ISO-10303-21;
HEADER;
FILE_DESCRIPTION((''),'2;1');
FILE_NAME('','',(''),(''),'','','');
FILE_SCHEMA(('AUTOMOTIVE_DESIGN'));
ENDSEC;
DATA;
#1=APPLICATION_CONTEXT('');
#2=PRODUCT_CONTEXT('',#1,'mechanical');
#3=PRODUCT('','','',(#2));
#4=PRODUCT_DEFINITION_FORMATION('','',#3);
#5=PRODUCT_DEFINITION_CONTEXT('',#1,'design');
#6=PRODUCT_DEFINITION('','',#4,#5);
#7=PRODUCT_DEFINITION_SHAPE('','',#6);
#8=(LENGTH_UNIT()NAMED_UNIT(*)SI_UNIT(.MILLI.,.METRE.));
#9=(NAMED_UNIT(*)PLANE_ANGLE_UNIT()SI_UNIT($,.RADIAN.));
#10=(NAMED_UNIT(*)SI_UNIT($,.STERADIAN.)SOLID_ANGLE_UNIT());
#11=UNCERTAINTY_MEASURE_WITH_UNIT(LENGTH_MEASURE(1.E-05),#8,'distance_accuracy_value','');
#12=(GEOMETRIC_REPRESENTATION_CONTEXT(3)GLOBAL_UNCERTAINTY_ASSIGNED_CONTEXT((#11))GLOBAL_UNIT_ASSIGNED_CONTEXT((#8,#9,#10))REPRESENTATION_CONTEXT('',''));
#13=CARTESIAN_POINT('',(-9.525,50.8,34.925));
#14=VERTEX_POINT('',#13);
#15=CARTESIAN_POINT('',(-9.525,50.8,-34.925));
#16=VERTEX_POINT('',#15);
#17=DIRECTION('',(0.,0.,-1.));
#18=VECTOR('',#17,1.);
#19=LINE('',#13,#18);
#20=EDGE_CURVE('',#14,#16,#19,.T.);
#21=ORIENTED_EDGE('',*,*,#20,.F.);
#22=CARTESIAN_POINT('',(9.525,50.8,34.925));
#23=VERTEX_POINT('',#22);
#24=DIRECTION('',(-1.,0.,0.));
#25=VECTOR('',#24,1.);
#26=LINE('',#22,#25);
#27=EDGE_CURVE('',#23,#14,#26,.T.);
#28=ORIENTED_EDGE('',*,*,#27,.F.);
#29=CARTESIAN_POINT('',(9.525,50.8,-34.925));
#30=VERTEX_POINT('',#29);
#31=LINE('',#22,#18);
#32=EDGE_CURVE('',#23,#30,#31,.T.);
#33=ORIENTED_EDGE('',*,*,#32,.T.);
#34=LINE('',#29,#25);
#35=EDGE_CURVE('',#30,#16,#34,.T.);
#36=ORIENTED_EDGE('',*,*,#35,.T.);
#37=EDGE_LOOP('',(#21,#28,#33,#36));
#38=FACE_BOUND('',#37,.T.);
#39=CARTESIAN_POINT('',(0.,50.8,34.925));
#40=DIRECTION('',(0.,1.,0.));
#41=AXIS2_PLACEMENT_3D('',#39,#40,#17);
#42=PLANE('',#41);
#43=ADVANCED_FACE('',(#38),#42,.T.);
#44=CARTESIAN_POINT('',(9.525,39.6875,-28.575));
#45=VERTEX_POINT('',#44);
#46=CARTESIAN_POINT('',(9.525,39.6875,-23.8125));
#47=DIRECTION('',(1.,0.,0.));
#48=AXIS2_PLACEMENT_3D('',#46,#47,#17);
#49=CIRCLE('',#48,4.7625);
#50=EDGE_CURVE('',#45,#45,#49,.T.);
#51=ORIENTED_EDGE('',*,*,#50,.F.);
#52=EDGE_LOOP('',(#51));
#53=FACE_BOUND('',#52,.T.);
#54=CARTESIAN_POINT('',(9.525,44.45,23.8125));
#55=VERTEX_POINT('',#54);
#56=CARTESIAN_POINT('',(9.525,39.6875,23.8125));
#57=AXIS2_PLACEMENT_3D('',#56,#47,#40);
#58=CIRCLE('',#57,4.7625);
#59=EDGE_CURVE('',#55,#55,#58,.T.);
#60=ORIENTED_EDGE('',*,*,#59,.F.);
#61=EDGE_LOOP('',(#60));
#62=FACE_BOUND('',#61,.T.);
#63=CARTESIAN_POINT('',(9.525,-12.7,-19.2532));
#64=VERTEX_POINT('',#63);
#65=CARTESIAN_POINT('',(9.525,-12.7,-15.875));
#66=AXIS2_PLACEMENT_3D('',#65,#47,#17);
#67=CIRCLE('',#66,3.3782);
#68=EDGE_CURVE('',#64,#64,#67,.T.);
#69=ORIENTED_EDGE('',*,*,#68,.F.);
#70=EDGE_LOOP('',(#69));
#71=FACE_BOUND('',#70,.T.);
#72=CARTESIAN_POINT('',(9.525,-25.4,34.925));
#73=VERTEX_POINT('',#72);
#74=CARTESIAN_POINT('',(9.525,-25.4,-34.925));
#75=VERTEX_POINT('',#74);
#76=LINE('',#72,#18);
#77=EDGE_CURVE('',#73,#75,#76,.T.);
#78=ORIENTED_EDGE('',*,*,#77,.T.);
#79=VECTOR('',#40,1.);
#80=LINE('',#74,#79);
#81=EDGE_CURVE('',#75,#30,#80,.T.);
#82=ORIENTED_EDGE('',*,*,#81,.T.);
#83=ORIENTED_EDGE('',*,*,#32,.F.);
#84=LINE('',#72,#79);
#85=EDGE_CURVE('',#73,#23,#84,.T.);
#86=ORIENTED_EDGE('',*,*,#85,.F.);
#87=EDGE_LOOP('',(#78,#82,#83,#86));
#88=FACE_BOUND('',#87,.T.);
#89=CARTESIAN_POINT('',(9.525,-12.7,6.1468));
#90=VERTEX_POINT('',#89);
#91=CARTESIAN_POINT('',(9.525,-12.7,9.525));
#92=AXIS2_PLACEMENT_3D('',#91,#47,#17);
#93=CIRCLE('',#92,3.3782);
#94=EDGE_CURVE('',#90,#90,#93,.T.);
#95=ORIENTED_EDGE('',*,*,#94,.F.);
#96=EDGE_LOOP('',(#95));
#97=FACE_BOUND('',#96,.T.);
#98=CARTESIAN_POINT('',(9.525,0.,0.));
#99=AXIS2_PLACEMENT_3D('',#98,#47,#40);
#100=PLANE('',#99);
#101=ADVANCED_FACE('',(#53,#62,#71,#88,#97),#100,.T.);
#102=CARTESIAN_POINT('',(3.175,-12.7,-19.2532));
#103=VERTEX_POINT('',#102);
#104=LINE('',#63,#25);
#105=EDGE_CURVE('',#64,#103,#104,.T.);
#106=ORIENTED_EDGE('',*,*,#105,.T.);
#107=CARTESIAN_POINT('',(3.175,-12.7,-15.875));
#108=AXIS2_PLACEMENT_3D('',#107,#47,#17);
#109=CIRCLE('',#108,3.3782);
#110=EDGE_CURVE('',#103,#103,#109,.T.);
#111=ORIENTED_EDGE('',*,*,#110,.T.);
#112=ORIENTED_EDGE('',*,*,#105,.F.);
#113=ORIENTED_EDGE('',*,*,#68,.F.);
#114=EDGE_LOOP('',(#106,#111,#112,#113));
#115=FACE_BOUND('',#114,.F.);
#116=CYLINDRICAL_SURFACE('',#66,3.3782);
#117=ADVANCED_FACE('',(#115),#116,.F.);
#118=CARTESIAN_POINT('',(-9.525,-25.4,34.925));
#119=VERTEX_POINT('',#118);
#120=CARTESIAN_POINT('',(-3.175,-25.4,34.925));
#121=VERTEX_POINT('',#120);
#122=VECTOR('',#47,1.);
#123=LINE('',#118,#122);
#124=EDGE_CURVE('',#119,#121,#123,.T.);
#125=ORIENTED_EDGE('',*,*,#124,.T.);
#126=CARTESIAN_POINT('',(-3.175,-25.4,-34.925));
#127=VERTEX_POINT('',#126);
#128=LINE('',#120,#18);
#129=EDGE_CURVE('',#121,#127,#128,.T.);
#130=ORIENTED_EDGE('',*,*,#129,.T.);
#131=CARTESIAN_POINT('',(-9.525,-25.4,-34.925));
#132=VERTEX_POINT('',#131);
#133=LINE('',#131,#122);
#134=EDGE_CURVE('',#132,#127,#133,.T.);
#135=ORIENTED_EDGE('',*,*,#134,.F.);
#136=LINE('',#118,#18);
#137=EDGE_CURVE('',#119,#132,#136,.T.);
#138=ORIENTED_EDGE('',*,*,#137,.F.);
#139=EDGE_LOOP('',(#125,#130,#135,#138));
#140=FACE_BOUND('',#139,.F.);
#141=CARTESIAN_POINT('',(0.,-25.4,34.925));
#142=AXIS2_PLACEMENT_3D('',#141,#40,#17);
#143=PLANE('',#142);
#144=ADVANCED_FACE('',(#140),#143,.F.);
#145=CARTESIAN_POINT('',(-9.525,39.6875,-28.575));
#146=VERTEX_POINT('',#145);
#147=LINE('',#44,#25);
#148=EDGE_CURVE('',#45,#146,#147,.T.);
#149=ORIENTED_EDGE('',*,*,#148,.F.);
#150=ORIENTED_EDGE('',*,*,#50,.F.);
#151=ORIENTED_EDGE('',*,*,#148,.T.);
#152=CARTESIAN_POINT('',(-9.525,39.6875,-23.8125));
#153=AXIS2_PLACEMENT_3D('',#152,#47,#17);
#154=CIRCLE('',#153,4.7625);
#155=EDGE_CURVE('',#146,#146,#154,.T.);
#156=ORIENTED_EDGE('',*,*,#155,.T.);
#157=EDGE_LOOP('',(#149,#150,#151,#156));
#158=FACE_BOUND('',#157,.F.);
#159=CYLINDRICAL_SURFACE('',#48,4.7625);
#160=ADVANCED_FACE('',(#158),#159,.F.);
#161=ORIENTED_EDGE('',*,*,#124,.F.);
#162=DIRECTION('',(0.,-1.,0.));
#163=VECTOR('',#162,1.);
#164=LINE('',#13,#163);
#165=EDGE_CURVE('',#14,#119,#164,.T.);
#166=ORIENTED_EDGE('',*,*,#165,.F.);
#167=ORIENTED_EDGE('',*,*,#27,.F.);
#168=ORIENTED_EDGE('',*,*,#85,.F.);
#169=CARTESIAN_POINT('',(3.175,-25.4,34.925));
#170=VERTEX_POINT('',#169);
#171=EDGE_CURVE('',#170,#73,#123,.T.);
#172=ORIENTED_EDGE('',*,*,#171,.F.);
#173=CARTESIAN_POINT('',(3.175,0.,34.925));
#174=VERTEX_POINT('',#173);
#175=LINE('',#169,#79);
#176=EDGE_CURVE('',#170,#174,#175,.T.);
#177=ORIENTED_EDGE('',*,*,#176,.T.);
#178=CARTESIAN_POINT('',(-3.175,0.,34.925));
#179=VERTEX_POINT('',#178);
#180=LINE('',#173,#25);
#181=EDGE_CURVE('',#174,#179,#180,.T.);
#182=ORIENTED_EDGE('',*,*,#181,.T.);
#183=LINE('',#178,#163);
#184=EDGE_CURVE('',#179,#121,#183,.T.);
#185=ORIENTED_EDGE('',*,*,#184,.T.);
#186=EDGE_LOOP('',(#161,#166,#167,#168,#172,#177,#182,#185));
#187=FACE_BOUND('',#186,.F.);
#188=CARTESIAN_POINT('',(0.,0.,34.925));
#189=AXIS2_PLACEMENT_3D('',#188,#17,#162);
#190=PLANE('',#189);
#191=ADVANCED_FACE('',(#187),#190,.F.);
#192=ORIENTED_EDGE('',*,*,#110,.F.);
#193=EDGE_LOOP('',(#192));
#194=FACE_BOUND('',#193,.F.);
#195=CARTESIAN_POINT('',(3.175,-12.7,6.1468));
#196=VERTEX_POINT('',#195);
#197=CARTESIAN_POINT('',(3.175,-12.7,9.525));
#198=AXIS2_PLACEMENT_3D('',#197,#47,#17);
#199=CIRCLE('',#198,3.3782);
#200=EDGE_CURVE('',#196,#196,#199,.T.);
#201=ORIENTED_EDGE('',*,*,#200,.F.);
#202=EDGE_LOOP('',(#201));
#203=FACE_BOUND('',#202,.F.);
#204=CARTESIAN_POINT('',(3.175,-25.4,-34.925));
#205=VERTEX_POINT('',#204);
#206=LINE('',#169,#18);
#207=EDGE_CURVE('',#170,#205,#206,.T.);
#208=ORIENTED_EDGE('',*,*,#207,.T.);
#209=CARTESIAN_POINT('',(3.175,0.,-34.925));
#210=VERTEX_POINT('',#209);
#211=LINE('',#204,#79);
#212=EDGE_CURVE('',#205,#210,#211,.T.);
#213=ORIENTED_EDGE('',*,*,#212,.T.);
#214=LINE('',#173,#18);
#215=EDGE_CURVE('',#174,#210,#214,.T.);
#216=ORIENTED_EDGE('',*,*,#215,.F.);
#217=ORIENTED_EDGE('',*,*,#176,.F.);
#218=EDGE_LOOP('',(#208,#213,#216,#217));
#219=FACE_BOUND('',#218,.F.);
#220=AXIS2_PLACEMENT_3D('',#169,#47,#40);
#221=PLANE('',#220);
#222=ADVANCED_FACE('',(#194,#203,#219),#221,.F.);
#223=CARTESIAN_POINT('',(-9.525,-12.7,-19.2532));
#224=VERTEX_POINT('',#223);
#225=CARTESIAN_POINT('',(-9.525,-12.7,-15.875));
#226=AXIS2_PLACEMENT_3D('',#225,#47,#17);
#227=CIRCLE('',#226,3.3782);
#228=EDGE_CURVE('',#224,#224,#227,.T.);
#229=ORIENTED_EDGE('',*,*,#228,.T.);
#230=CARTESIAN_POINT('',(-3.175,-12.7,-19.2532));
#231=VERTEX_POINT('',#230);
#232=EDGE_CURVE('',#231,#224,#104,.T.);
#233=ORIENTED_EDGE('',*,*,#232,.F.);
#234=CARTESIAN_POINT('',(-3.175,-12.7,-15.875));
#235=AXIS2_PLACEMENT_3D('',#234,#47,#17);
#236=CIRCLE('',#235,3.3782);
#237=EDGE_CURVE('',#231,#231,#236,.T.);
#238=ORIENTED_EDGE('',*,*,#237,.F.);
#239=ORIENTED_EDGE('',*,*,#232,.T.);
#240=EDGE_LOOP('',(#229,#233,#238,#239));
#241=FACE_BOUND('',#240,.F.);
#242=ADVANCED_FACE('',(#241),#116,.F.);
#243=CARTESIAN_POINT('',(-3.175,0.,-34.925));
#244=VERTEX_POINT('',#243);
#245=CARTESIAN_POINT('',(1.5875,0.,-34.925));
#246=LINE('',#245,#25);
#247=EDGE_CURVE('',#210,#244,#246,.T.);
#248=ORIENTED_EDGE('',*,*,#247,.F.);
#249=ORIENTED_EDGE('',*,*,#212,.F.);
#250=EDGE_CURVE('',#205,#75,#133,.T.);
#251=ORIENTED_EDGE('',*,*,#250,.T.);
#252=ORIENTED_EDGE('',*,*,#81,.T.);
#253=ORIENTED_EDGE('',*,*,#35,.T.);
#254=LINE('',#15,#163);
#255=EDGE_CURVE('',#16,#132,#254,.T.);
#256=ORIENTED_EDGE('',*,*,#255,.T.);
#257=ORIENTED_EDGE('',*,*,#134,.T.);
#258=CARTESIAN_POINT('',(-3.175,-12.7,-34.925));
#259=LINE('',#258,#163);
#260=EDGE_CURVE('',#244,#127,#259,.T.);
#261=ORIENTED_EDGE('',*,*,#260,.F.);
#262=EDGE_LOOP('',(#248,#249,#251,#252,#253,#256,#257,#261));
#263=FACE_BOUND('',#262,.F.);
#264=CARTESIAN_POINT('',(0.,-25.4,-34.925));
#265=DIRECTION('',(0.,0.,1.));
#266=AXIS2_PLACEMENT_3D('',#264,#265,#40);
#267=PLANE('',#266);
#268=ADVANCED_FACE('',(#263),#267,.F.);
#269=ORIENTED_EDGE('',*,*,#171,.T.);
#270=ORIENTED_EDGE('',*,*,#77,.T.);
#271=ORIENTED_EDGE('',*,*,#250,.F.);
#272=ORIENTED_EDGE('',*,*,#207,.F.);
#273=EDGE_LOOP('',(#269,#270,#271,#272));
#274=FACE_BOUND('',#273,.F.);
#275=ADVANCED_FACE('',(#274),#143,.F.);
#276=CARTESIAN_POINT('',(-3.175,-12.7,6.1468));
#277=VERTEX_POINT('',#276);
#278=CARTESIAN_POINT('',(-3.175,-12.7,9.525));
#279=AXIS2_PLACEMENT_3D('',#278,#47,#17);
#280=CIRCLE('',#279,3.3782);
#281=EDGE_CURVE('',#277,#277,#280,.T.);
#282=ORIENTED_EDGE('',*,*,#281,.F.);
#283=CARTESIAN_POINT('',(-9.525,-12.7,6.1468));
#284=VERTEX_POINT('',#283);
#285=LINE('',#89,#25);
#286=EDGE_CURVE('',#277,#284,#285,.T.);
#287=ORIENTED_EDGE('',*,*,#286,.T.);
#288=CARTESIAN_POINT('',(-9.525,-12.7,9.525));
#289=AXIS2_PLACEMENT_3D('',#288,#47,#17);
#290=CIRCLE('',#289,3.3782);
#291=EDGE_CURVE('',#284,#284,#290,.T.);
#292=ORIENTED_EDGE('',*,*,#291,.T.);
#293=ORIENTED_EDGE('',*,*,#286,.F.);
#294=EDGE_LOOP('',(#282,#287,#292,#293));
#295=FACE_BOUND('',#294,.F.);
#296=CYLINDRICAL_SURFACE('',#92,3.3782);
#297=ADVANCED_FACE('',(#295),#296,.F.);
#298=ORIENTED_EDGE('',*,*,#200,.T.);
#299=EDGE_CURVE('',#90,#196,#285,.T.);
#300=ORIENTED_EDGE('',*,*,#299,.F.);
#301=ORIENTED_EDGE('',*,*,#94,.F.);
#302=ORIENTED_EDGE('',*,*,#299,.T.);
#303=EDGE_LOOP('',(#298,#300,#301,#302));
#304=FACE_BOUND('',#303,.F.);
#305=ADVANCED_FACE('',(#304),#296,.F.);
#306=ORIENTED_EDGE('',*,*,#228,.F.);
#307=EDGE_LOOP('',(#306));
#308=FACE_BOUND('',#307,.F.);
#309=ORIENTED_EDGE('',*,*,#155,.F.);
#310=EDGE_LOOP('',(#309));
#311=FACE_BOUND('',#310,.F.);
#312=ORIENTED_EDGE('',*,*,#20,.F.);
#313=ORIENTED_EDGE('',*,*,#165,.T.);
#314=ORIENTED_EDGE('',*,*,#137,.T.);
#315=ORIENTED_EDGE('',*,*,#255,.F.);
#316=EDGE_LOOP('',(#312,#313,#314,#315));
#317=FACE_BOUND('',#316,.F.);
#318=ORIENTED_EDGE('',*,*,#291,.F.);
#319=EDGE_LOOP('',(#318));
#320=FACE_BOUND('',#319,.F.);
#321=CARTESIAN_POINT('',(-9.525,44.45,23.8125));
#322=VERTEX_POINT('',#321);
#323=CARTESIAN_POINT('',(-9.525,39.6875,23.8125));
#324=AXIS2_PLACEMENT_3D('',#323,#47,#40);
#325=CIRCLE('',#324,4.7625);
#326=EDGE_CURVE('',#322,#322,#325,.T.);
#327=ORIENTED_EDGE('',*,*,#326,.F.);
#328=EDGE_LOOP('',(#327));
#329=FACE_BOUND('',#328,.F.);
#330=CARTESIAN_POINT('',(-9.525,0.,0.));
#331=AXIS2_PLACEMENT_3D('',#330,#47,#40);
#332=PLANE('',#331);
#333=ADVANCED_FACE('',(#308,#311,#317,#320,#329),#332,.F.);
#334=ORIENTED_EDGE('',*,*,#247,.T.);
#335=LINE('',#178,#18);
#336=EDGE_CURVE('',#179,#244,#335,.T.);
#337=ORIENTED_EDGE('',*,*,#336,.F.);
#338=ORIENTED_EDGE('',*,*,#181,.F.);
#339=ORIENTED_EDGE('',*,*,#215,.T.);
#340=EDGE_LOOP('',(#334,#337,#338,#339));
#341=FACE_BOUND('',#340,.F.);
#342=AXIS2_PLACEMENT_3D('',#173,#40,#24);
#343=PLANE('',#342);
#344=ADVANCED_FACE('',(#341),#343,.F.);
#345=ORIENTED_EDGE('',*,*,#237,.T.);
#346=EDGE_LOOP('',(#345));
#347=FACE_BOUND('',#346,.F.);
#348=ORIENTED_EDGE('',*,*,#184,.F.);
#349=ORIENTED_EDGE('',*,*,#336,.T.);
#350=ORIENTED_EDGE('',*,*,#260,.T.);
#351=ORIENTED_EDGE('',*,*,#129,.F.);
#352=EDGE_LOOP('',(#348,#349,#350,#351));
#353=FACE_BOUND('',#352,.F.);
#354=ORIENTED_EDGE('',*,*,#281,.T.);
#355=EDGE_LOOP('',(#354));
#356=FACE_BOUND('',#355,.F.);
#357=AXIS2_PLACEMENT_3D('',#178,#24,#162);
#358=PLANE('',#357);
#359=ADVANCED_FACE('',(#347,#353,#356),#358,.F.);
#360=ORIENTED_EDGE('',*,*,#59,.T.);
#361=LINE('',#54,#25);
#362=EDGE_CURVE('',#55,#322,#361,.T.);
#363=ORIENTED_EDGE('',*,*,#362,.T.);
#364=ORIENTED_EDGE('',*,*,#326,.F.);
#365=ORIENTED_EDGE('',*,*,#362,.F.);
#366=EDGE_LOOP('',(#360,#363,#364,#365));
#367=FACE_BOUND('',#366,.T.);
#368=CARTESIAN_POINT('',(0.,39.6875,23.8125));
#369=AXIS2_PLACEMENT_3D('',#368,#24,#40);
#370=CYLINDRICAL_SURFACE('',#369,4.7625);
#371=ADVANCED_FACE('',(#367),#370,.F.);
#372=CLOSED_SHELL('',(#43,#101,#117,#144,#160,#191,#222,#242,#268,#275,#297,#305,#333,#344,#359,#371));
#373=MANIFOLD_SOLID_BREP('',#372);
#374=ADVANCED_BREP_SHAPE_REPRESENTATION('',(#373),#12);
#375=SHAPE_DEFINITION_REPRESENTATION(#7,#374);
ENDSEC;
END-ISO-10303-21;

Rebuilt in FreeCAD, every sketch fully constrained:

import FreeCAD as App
import Part
import Sketcher
from FreeCAD import Vector
Q = App.Units.Quantity

doc = App.newDocument("Part")
params = doc.addObject("Spreadsheet::Sheet", "Params")
for row, (alias, value) in enumerate([
    ("sketch1_diameter", "0.375 in"),
    ("sketch1_height", "2.75 in"),
    ("pad1_length", "0.75 in"),
    ("sketch2_width", "0.25 in"),
    ("sketch2_height", "1 in"),
    ("sketch3_diameter", "0.266 in"),
    ("sketch4_diameter", "0.375 in"),
], start=1):
    params.set(f"A{row}", alias)
    params.set(f"B{row}", "=" + value)
    params.setAlias(f"B{row}", alias)

body = doc.addObject("PartDesign::Body", "Body")

sketch1 = doc.addObject("Sketcher::SketchObject", "Sketch")
body.addObject(sketch1)
sketch1.AttachmentSupport = (doc.YZ_Plane, [""])
sketch1.MapMode = "FlatFace"
sketch1.addGeometry(Part.LineSegment(Vector(-25.4, 34.925, 0), Vector(-25.4, -34.925, 0)), False)
sketch1.addGeometry(Part.LineSegment(Vector(-25.4, -34.925, 0), Vector(50.8, -34.925, 0)), False)
sketch1.addGeometry(Part.LineSegment(Vector(50.8, -34.925, 0), Vector(50.8, 34.925, 0)), False)
sketch1.addGeometry(Part.LineSegment(Vector(50.8, 34.925, 0), Vector(-25.4, 34.925, 0)), False)
sketch1.addGeometry(Part.Circle(Vector(39.6875, 23.8125, 0), Vector(0, 0, 1), 4.7625), False)
sketch1.addConstraint(Sketcher.Constraint("Coincident", 0, 2, 1, 1))
sketch1.addConstraint(Sketcher.Constraint("Coincident", 1, 2, 2, 1))
sketch1.addConstraint(Sketcher.Constraint("Coincident", 2, 2, 3, 1))
sketch1.addConstraint(Sketcher.Constraint("Coincident", 3, 2, 0, 1))
sketch1.addConstraint(Sketcher.Constraint("Vertical", 0))
sketch1.addConstraint(Sketcher.Constraint("Horizontal", 1))
sketch1.addConstraint(Sketcher.Constraint("Vertical", 2))
sketch1.addConstraint(Sketcher.Constraint("Horizontal", 3))
sketch1.addConstraint(Sketcher.Constraint("Diameter", 4, Q("0.375 in")))
sketch1.addConstraint(Sketcher.Constraint("DistanceX", 0, 2, -1, 1, Q("1 in")))
sketch1.addConstraint(Sketcher.Constraint("DistanceX", -1, 1, 1, 2, Q("2 in")))
sketch1.addConstraint(Sketcher.Constraint("DistanceY", 0, 2, 0, 1, Q("2.75 in")))
sketch1.addConstraint(Sketcher.Constraint("DistanceX", 4, 3, 1, 2, Q("0.4375 in")))
sketch1.addConstraint(Sketcher.Constraint("DistanceY", 4, 3, 2, 2, Q("0.4375 in")))
sketch1.addConstraint(Sketcher.Constraint("DistanceY", -1, 1, 4, 3, Q("0.9375 in")))
sketch1.setExpression("Constraints[8]", "Params.sketch1_diameter")
sketch1.setExpression("Constraints[11]", "Params.sketch1_height")
pad1 = doc.addObject("PartDesign::Pad", "Pad")
body.addObject(pad1)
pad1.Profile = sketch1
pad1.setExpression("Length", "Params.pad1_length")
pad1.Midplane = True

sketch2 = doc.addObject("Sketcher::SketchObject", "Sketch001")
body.addObject(sketch2)
sketch2.AttachmentSupport = (doc.XY_Plane, [""])
sketch2.MapMode = "FlatFace"
sketch2.AttachmentOffset = App.Placement(Vector(0, 0, 1.375 * 25.4), App.Rotation())
sketch2.addGeometry(Part.LineSegment(Vector(-3.175, 0, 0), Vector(-3.175, -25.4, 0)), False)
sketch2.addGeometry(Part.LineSegment(Vector(-3.175, -25.4, 0), Vector(3.175, -25.4, 0)), False)
sketch2.addGeometry(Part.LineSegment(Vector(3.175, -25.4, 0), Vector(3.175, 0, 0)), False)
sketch2.addGeometry(Part.LineSegment(Vector(3.175, 0, 0), Vector(-3.175, 0, 0)), False)
sketch2.addConstraint(Sketcher.Constraint("Coincident", 0, 2, 1, 1))
sketch2.addConstraint(Sketcher.Constraint("Coincident", 1, 2, 2, 1))
sketch2.addConstraint(Sketcher.Constraint("Coincident", 2, 2, 3, 1))
sketch2.addConstraint(Sketcher.Constraint("Coincident", 3, 2, 0, 1))
sketch2.addConstraint(Sketcher.Constraint("Vertical", 0))
sketch2.addConstraint(Sketcher.Constraint("Horizontal", 1))
sketch2.addConstraint(Sketcher.Constraint("Vertical", 2))
sketch2.addConstraint(Sketcher.Constraint("Horizontal", 3))
sketch2.addConstraint(Sketcher.Constraint("Symmetric", 2, 2, 3, 2, -1, 1))
sketch2.addConstraint(Sketcher.Constraint("DistanceX", 1, 1, 1, 2, Q("0.25 in")))
sketch2.addConstraint(Sketcher.Constraint("DistanceY", 0, 2, 0, 1, Q("1 in")))
sketch2.setExpression("Constraints[9]", "Params.sketch2_width")
sketch2.setExpression("Constraints[10]", "Params.sketch2_height")
pocket1 = doc.addObject("PartDesign::Pocket", "Pocket")
body.addObject(pocket1)
pocket1.Profile = sketch2
pocket1.Type = "ThroughAll"

sketch3 = doc.addObject("Sketcher::SketchObject", "Sketch002")
body.addObject(sketch3)
sketch3.AttachmentSupport = (doc.YZ_Plane, [""])
sketch3.MapMode = "FlatFace"
sketch3.AttachmentOffset = App.Placement(Vector(0, 0, 0.375 * 25.4), App.Rotation())
sketch3.addGeometry(Part.Circle(Vector(-12.7, 9.525, 0), Vector(0, 0, 1), 3.3782), False)
sketch3.addGeometry(Part.Circle(Vector(-12.7, -15.875, 0), Vector(0, 0, 1), 3.3782), False)
sketch3.addConstraint(Sketcher.Constraint("Equal", 0, 1))
sketch3.addConstraint(Sketcher.Constraint("Vertical", 0, 3, 1, 3))
sketch3.addConstraint(Sketcher.Constraint("Diameter", 0, Q("0.266 in")))
sketch3.addConstraint(Sketcher.Constraint("DistanceY", 1, 3, 0, 3, Q("1 in")))
sketch3.addConstraint(Sketcher.Constraint("DistanceX", 0, 3, -1, 1, Q("0.5 in")))
sketch3.addConstraint(Sketcher.Constraint("DistanceY", -1, 1, 0, 3, Q("0.375 in")))
sketch3.setExpression("Constraints[2]", "Params.sketch3_diameter")
pocket2 = doc.addObject("PartDesign::Pocket", "Pocket001")
body.addObject(pocket2)
pocket2.Profile = sketch3
pocket2.Type = "ThroughAll"

sketch4 = doc.addObject("Sketcher::SketchObject", "Sketch003")
body.addObject(sketch4)
sketch4.AttachmentSupport = (doc.YZ_Plane, [""])
sketch4.MapMode = "FlatFace"
sketch4.AttachmentOffset = App.Placement(Vector(0, 0, 0.375 * 25.4), App.Rotation())
sketch4.addGeometry(Part.Circle(Vector(39.6875, -23.8125, 0), Vector(0, 0, 1), 4.7625), False)
sketch4.addConstraint(Sketcher.Constraint("Diameter", 0, Q("0.375 in")))
sketch4.addConstraint(Sketcher.Constraint("DistanceX", -1, 1, 0, 3, Q("1.5625 in")))
sketch4.addConstraint(Sketcher.Constraint("DistanceY", 0, 3, -1, 1, Q("0.9375 in")))
sketch4.setExpression("Constraints[0]", "Params.sketch4_diameter")
pocket3 = doc.addObject("PartDesign::Pocket", "Pocket002")
body.addObject(pocket3)
pocket3.Profile = sketch4
pocket3.Type = "ThroughAll"

doc.recompute()
